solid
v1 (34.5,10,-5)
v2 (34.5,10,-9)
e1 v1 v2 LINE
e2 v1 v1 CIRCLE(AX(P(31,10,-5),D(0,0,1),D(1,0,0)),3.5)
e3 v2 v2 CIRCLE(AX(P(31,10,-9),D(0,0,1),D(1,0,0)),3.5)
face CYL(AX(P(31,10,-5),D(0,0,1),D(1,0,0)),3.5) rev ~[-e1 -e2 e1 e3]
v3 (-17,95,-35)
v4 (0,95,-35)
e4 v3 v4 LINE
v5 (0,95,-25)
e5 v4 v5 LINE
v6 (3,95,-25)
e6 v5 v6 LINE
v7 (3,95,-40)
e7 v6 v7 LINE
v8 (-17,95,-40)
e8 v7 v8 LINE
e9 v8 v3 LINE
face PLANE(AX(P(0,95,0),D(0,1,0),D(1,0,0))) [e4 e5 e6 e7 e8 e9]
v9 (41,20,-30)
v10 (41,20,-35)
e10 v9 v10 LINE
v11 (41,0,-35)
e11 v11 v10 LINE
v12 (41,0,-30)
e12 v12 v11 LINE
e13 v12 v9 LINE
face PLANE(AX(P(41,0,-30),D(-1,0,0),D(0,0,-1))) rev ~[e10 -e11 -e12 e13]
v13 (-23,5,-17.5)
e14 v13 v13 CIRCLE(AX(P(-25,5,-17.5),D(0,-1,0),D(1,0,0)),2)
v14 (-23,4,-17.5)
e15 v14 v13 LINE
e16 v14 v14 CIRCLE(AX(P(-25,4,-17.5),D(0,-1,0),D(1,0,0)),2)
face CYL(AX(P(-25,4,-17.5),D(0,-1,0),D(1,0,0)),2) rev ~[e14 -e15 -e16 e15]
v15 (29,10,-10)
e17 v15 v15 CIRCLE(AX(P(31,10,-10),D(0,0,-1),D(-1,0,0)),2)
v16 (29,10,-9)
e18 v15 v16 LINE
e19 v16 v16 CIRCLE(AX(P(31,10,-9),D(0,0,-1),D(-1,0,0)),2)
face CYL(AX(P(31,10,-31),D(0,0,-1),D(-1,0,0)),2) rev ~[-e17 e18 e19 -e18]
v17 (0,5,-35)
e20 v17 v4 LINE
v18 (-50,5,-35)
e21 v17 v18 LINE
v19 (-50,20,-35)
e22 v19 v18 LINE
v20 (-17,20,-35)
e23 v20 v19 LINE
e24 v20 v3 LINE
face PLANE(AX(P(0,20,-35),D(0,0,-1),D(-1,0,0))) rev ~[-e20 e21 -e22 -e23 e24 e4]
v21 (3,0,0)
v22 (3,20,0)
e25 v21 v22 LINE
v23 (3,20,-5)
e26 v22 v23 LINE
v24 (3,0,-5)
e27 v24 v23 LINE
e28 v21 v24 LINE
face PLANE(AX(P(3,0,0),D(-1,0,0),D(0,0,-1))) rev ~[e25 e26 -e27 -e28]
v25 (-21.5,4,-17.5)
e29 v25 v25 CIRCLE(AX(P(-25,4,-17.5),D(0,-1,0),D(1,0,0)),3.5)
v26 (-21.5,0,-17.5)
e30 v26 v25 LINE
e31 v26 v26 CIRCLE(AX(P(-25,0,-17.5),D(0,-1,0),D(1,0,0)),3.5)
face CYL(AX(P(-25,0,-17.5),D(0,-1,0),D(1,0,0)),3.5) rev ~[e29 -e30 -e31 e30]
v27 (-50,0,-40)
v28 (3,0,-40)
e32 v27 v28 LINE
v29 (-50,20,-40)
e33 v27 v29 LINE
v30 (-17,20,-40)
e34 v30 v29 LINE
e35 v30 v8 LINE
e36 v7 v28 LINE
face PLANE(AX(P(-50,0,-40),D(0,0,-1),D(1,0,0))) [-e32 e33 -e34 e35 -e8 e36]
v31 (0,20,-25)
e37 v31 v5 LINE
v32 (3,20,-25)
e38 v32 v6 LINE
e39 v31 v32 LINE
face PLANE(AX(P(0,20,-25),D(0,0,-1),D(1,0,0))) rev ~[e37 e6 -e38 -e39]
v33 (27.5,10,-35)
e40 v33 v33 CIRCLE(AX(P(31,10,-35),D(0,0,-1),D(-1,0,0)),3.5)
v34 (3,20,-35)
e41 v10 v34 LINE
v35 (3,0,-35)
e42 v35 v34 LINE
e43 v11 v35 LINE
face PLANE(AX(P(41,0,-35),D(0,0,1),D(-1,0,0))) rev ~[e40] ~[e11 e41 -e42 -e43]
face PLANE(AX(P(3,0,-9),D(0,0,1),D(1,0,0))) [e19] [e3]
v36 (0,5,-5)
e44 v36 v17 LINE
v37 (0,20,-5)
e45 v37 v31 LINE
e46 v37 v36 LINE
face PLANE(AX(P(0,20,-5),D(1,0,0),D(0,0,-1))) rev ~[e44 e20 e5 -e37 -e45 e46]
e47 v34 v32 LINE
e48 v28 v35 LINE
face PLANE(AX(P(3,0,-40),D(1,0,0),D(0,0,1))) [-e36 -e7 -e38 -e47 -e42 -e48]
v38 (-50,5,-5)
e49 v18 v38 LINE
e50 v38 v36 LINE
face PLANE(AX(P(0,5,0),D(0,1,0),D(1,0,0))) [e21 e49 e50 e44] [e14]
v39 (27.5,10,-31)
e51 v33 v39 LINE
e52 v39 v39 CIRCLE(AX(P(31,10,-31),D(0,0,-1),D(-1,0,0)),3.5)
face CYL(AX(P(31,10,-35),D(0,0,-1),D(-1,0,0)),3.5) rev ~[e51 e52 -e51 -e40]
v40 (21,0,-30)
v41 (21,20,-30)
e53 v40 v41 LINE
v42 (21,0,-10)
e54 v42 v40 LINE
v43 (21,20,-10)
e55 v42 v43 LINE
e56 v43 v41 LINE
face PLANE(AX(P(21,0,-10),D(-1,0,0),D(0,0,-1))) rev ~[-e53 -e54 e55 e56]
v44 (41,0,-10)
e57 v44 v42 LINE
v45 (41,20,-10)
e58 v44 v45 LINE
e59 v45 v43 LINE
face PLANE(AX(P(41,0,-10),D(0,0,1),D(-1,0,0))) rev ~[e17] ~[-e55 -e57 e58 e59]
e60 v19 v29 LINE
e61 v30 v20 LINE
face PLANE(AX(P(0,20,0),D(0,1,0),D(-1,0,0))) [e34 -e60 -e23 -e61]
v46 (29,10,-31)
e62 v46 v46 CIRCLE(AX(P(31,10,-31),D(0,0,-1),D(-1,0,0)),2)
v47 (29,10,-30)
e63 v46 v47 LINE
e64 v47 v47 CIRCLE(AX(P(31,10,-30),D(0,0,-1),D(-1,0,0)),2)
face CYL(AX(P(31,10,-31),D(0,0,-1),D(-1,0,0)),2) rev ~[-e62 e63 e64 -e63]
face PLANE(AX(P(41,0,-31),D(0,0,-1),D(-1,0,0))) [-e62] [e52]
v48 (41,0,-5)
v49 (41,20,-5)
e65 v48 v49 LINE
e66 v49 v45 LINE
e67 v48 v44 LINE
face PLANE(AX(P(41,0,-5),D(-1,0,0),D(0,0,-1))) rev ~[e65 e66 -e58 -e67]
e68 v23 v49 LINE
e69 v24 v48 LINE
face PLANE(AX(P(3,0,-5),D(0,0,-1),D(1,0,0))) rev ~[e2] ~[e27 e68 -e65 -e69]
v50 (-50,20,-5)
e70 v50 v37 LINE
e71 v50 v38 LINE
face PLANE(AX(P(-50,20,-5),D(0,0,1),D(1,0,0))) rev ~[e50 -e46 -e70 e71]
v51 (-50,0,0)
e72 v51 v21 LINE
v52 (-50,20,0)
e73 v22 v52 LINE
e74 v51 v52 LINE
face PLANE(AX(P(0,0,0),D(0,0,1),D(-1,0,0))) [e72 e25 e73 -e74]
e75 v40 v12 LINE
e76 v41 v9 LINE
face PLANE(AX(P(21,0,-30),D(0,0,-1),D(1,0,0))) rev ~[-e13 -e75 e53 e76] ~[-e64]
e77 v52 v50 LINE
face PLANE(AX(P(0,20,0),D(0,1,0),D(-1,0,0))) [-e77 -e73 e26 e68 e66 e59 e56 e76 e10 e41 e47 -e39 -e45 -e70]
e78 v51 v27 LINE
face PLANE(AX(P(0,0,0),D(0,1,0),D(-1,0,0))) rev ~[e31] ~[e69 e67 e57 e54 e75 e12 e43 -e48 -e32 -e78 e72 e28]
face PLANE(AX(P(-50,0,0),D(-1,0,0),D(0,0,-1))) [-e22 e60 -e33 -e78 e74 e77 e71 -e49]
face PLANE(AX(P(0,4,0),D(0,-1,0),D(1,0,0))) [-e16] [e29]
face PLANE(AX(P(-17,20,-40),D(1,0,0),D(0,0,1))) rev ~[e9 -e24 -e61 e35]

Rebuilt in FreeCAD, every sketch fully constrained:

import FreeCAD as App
import Part
import Sketcher
from FreeCAD import Vector
Q = App.Units.Quantity


def add_polygon(sketch, points):
    """Adds a closed chain of lines whose ends are joined by coincident constraints."""
    first, n = sketch.GeometryCount, len(points)
    for a, b in zip(points, points[1:] + points[:1]):
        sketch.addGeometry(Part.LineSegment(App.Vector(*a, 0), App.Vector(*b, 0)), False)
    for i in range(n):
        sketch.addConstraint(Sketcher.Constraint("Coincident", first + i, 2, first + (i + 1) % n, 1))

doc = App.newDocument("Part")
params = doc.addObject("Spreadsheet::Sheet", "Params")
for row, (alias, value) in enumerate([
    ("sketch1_height", "5 mm"),
    ("sketch1_height2", "40 mm"),
    ("pad1_length", "20 mm"),
    ("sketch2_width", "50 mm"),
    ("sketch2_height", "30 mm"),
    ("pocket1_length", "15 mm"),
    ("sketch3_diameter", "7 mm"),
    ("pocket2_length", "4 mm"),
    ("sketch4_diameter", "7 mm"),
    ("pocket3_length", "4 mm"),
    ("sketch5_diameter", "4 mm"),
    ("sketch6_diameter", "7 mm"),
    ("pocket5_length", "4 mm"),
    ("sketch7_diameter", "4 mm"),
    ("pocket6_length", "4 mm"),
    ("sketch8_width", "20 mm"),
    ("sketch8_height", "10 mm"),
    ("sketch8_width2", "17 mm"),
    ("sketch8_height2", "15 mm"),
    ("pad2_length", "75 mm"),
], start=1):
    params.set(f"A{row}", alias)
    params.set(f"B{row}", "=" + value)
    params.setAlias(f"B{row}", alias)

body = doc.addObject("PartDesign::Body", "Body")

# Sketch on XZ plane
sketch1 = body.newObject("Sketcher::SketchObject", "Sketch")
sketch1.AttachmentSupport = (doc.getObject("XZ_Plane"), [""])
sketch1.MapMode = "FlatFace"
add_polygon(sketch1, [(-50, 0), (3, 0), (3, -5), (41, -5), (41, -10), (21, -10), (21, -30), (41, -30), (41, -35), (3, -35), (3, -40), (-50, -40)])  # lines 0-11
sketch1.addConstraint([
    Sketcher.Constraint("Horizontal", 0),
    Sketcher.Constraint("Vertical", 1),
    Sketcher.Constraint("Horizontal", 2),
    Sketcher.Constraint("Vertical", 3),
    Sketcher.Constraint("Horizontal", 4),
    Sketcher.Constraint("Vertical", 5),
    Sketcher.Constraint("Horizontal", 6),
    Sketcher.Constraint("Vertical", 7),
    Sketcher.Constraint("Horizontal", 8),
    Sketcher.Constraint("Vertical", 9),
    Sketcher.Constraint("Horizontal", 10),
    Sketcher.Constraint("Vertical", 11),
    Sketcher.Constraint("PointOnObject", 0, 2, -1),
    Sketcher.Constraint("Vertical", 3, 2, 6, 2),
    Sketcher.Constraint("Vertical", 1, 2, 8, 2),
    Sketcher.Constraint("Equal", 1, 3),
    Sketcher.Constraint("Equal", 6, 5),
    Sketcher.Constraint("Equal", 3, 7),
    Sketcher.Constraint("Equal", 7, 9),
    Sketcher.Constraint("DistanceY", 1, 2, 1, 1, Q("5 mm")),
    Sketcher.Constraint("DistanceY", 11, 1, 11, 2, Q("40 mm")),
    Sketcher.Constraint("DistanceX", -1, 1, 0, 2, Q("3 mm")),
    Sketcher.Constraint("DistanceX", -1, 1, 2, 2, Q("41 mm")),
    Sketcher.Constraint("DistanceX", 10, 2, -1, 1, Q("50 mm")),
])
sketch1.setExpression("Constraints[31]", "Params.sketch1_height")
sketch1.setExpression("Constraints[32]", "Params.sketch1_height2")
pad1 = body.newObject("PartDesign::Pad", "Pad")
pad1.Profile = sketch1
pad1.setExpression("Length", "Params.pad1_length")
pad1.Reversed = True

# Sketch on XZ plane
sketch2 = body.newObject("Sketcher::SketchObject", "Sketch001")
sketch2.AttachmentSupport = (doc.getObject("XZ_Plane"), [""])
sketch2.MapMode = "FlatFace"
sketch2.AttachmentOffset = App.Placement(Vector(0, 0, -20), App.Rotation())
add_polygon(sketch2, [(0, -35), (-50, -35), (-50, -5), (0, -5)])  # lines 0-3
sketch2.addConstraint([
    Sketcher.Constraint("Horizontal", 0),
    Sketcher.Constraint("Vertical", 1),
    Sketcher.Constraint("Horizontal", 2),
    Sketcher.Constraint("Vertical", 3),
    Sketcher.Constraint("PointOnObject", 2, 2, -2),
    Sketcher.Constraint("DistanceX", 0, 2, 0, 1, Q("50 mm")),
    Sketcher.Constraint("DistanceY", 1, 1, 1, 2, Q("30 mm")),
    Sketcher.Constraint("DistanceY", 1, 2, -1, 1, Q("5 mm")),
])
sketch2.setExpression("Constraints[9]", "Params.sketch2_width")
sketch2.setExpression("Constraints[10]", "Params.sketch2_height")
pocket1 = body.newObject("PartDesign::Pocket", "Pocket")
pocket1.Profile = sketch2
pocket1.setExpression("Length", "Params.pocket1_length")
pocket1.Reversed = True

# Sketch on XY plane
sketch3 = body.newObject("Sketcher::SketchObject", "Sketch002")
sketch3.AttachmentSupport = (doc.getObject("XY_Plane"), [""])
sketch3.MapMode = "FlatFace"
sketch3.AttachmentOffset = App.Placement(Vector(0, 0, -5), App.Rotation())
sketch3.addGeometry(Part.Circle(Vector(31, 10, 0), Vector(0, 0, 1), 3.5), False)
sketch3.addConstraint([
    Sketcher.Constraint("Diameter", 0, Q("7 mm")),
    Sketcher.Constraint("DistanceY", -1, 1, 0, 3, Q("10 mm")),
    Sketcher.Constraint("DistanceX", -1, 1, 0, 3, Q("31 mm")),
])
sketch3.setExpression("Constraints[0]", "Params.sketch3_diameter")
pocket2 = body.newObject("PartDesign::Pocket", "Pocket001")
pocket2.Profile = sketch3
pocket2.setExpression("Length", "Params.pocket2_length")

# Sketch on XY plane
sketch4 = body.newObject("Sketcher::SketchObject", "Sketch003")
sketch4.AttachmentSupport = (doc.getObject("XY_Plane"), [""])
sketch4.MapMode = "FlatFace"
sketch4.AttachmentOffset = App.Placement(Vector(0, 0, -35), App.Rotation())
sketch4.addGeometry(Part.Circle(Vector(31, 10, 0), Vector(0, 0, 1), 3.5), False)
sketch4.addConstraint([
    Sketcher.Constraint("Diameter", 0, Q("7 mm")),
    Sketcher.Constraint("DistanceX", -1, 1, 0, 3, Q("31 mm")),
    Sketcher.Constraint("DistanceY", -1, 1, 0, 3, Q("10 mm")),
])
sketch4.setExpression("Constraints[0]", "Params.sketch4_diameter")
pocket3 = body.newObject("PartDesign::Pocket", "Pocket002")
pocket3.Profile = sketch4
pocket3.setExpression("Length", "Params.pocket3_length")
pocket3.Reversed = True

# Sketch on XY plane
sketch5 = body.newObject("Sketcher::SketchObject", "Sketch004")
sketch5.AttachmentSupport = (doc.getObject("XY_Plane"), [""])
sketch5.MapMode = "FlatFace"
sketch5.AttachmentOffset = App.Placement(Vector(0, 0, -31), App.Rotation())
sketch5.addGeometry(Part.Circle(Vector(31, 10, 0), Vector(0, 0, 1), 2), False)
sketch5.addConstraint([
    Sketcher.Constraint("Diameter", 0, Q("4 mm")),
    Sketcher.Constraint("DistanceX", -1, 1, 0, 3, Q("31 mm")),
    Sketcher.Constraint("DistanceY", -1, 1, 0, 3, Q("10 mm")),
])
sketch5.setExpression("Constraints[0]", "Params.sketch5_diameter")
pocket4 = body.newObject("PartDesign::Pocket", "Pocket003")
pocket4.Profile = sketch5
pocket4.Type = "ThroughAll"
pocket4.Reversed = True

# Sketch on XZ plane
sketch6 = body.newObject("Sketcher::SketchObject", "Sketch005")
sketch6.AttachmentSupport = (doc.getObject("XZ_Plane"), [""])
sketch6.MapMode = "FlatFace"
sketch6.addGeometry(Part.Circle(Vector(-25, -17.5, 0), Vector(0, 0, 1), 3.5), False)
sketch6.addConstraint([
    Sketcher.Constraint("Diameter", 0, Q("7 mm")),
    Sketcher.Constraint("DistanceX", 0, 3, -1, 1, Q("25 mm")),
    Sketcher.Constraint("DistanceY", 0, 3, -1, 1, Q("17.5 mm")),
])
sketch6.setExpression("Constraints[0]", "Params.sketch6_diameter")
pocket5 = body.newObject("PartDesign::Pocket", "Pocket004")
pocket5.Profile = sketch6
pocket5.setExpression("Length", "Params.pocket5_length")

# Sketch on XZ plane
sketch7 = body.newObject("Sketcher::SketchObject", "Sketch006")
sketch7.AttachmentSupport = (doc.getObject("XZ_Plane"), [""])
sketch7.MapMode = "FlatFace"
sketch7.AttachmentOffset = App.Placement(Vector(0, 0, -4), App.Rotation())
sketch7.addGeometry(Part.Circle(Vector(-25, -17.5, 0), Vector(0, 0, 1), 2), False)
sketch7.addConstraint([
    Sketcher.Constraint("Diameter", 0, Q("4 mm")),
    Sketcher.Constraint("DistanceX", 0, 3, -1, 1, Q("25 mm")),
    Sketcher.Constraint("DistanceY", 0, 3, -1, 1, Q("17.5 mm")),
])
sketch7.setExpression("Constraints[0]", "Params.sketch7_diameter")
pocket6 = body.newObject("PartDesign::Pocket", "Pocket005")
pocket6.Profile = sketch7
pocket6.setExpression("Length", "Params.pocket6_length")

# Sketch on XZ plane
sketch8 = body.newObject("Sketcher::SketchObject", "Sketch007")
sketch8.AttachmentSupport = (doc.getObject("XZ_Plane"), [""])
sketch8.MapMode = "FlatFace"
sketch8.AttachmentOffset = App.Placement(Vector(0, 0, -20), App.Rotation())
add_polygon(sketch8, [(-17, -35), (0, -35), (0, -25), (3, -25), (3, -40), (-17, -40)])  # lines 0-5
sketch8.addConstraint([
    Sketcher.Constraint("Horizontal", 0),
    Sketcher.Constraint("Vertical", 1),
    Sketcher.Constraint("Horizontal", 2),
    Sketcher.Constraint("Vertical", 3),
    Sketcher.Constraint("Horizontal", 4),
    Sketcher.Constraint("Vertical", 5),
    Sketcher.Constraint("PointOnObject", 0, 2, -2),
    Sketcher.Constraint("DistanceX", 4, 2, 4, 1, Q("20 mm")),
    Sketcher.Constraint("DistanceY", 1, 1, 1, 2, Q("10 mm")),
    Sketcher.Constraint("DistanceX", 0, 1, 0, 2, Q("17 mm")),
    Sketcher.Constraint("DistanceY", 3, 2, 3, 1, Q("15 mm")),
    Sketcher.Constraint("DistanceY", 0, 2, -1, 1, Q("35 mm")),
])
sketch8.setExpression("Constraints[13]", "Params.sketch8_width")
sketch8.setExpression("Constraints[14]", "Params.sketch8_height")
sketch8.setExpression("Constraints[15]", "Params.sketch8_width2")
sketch8.setExpression("Constraints[16]", "Params.sketch8_height2")
pad2 = body.newObject("PartDesign::Pad", "Pad001")
pad2.Profile = sketch8
pad2.setExpression("Length", "Params.pad2_length")
pad2.Reversed = True

doc.recompute()
